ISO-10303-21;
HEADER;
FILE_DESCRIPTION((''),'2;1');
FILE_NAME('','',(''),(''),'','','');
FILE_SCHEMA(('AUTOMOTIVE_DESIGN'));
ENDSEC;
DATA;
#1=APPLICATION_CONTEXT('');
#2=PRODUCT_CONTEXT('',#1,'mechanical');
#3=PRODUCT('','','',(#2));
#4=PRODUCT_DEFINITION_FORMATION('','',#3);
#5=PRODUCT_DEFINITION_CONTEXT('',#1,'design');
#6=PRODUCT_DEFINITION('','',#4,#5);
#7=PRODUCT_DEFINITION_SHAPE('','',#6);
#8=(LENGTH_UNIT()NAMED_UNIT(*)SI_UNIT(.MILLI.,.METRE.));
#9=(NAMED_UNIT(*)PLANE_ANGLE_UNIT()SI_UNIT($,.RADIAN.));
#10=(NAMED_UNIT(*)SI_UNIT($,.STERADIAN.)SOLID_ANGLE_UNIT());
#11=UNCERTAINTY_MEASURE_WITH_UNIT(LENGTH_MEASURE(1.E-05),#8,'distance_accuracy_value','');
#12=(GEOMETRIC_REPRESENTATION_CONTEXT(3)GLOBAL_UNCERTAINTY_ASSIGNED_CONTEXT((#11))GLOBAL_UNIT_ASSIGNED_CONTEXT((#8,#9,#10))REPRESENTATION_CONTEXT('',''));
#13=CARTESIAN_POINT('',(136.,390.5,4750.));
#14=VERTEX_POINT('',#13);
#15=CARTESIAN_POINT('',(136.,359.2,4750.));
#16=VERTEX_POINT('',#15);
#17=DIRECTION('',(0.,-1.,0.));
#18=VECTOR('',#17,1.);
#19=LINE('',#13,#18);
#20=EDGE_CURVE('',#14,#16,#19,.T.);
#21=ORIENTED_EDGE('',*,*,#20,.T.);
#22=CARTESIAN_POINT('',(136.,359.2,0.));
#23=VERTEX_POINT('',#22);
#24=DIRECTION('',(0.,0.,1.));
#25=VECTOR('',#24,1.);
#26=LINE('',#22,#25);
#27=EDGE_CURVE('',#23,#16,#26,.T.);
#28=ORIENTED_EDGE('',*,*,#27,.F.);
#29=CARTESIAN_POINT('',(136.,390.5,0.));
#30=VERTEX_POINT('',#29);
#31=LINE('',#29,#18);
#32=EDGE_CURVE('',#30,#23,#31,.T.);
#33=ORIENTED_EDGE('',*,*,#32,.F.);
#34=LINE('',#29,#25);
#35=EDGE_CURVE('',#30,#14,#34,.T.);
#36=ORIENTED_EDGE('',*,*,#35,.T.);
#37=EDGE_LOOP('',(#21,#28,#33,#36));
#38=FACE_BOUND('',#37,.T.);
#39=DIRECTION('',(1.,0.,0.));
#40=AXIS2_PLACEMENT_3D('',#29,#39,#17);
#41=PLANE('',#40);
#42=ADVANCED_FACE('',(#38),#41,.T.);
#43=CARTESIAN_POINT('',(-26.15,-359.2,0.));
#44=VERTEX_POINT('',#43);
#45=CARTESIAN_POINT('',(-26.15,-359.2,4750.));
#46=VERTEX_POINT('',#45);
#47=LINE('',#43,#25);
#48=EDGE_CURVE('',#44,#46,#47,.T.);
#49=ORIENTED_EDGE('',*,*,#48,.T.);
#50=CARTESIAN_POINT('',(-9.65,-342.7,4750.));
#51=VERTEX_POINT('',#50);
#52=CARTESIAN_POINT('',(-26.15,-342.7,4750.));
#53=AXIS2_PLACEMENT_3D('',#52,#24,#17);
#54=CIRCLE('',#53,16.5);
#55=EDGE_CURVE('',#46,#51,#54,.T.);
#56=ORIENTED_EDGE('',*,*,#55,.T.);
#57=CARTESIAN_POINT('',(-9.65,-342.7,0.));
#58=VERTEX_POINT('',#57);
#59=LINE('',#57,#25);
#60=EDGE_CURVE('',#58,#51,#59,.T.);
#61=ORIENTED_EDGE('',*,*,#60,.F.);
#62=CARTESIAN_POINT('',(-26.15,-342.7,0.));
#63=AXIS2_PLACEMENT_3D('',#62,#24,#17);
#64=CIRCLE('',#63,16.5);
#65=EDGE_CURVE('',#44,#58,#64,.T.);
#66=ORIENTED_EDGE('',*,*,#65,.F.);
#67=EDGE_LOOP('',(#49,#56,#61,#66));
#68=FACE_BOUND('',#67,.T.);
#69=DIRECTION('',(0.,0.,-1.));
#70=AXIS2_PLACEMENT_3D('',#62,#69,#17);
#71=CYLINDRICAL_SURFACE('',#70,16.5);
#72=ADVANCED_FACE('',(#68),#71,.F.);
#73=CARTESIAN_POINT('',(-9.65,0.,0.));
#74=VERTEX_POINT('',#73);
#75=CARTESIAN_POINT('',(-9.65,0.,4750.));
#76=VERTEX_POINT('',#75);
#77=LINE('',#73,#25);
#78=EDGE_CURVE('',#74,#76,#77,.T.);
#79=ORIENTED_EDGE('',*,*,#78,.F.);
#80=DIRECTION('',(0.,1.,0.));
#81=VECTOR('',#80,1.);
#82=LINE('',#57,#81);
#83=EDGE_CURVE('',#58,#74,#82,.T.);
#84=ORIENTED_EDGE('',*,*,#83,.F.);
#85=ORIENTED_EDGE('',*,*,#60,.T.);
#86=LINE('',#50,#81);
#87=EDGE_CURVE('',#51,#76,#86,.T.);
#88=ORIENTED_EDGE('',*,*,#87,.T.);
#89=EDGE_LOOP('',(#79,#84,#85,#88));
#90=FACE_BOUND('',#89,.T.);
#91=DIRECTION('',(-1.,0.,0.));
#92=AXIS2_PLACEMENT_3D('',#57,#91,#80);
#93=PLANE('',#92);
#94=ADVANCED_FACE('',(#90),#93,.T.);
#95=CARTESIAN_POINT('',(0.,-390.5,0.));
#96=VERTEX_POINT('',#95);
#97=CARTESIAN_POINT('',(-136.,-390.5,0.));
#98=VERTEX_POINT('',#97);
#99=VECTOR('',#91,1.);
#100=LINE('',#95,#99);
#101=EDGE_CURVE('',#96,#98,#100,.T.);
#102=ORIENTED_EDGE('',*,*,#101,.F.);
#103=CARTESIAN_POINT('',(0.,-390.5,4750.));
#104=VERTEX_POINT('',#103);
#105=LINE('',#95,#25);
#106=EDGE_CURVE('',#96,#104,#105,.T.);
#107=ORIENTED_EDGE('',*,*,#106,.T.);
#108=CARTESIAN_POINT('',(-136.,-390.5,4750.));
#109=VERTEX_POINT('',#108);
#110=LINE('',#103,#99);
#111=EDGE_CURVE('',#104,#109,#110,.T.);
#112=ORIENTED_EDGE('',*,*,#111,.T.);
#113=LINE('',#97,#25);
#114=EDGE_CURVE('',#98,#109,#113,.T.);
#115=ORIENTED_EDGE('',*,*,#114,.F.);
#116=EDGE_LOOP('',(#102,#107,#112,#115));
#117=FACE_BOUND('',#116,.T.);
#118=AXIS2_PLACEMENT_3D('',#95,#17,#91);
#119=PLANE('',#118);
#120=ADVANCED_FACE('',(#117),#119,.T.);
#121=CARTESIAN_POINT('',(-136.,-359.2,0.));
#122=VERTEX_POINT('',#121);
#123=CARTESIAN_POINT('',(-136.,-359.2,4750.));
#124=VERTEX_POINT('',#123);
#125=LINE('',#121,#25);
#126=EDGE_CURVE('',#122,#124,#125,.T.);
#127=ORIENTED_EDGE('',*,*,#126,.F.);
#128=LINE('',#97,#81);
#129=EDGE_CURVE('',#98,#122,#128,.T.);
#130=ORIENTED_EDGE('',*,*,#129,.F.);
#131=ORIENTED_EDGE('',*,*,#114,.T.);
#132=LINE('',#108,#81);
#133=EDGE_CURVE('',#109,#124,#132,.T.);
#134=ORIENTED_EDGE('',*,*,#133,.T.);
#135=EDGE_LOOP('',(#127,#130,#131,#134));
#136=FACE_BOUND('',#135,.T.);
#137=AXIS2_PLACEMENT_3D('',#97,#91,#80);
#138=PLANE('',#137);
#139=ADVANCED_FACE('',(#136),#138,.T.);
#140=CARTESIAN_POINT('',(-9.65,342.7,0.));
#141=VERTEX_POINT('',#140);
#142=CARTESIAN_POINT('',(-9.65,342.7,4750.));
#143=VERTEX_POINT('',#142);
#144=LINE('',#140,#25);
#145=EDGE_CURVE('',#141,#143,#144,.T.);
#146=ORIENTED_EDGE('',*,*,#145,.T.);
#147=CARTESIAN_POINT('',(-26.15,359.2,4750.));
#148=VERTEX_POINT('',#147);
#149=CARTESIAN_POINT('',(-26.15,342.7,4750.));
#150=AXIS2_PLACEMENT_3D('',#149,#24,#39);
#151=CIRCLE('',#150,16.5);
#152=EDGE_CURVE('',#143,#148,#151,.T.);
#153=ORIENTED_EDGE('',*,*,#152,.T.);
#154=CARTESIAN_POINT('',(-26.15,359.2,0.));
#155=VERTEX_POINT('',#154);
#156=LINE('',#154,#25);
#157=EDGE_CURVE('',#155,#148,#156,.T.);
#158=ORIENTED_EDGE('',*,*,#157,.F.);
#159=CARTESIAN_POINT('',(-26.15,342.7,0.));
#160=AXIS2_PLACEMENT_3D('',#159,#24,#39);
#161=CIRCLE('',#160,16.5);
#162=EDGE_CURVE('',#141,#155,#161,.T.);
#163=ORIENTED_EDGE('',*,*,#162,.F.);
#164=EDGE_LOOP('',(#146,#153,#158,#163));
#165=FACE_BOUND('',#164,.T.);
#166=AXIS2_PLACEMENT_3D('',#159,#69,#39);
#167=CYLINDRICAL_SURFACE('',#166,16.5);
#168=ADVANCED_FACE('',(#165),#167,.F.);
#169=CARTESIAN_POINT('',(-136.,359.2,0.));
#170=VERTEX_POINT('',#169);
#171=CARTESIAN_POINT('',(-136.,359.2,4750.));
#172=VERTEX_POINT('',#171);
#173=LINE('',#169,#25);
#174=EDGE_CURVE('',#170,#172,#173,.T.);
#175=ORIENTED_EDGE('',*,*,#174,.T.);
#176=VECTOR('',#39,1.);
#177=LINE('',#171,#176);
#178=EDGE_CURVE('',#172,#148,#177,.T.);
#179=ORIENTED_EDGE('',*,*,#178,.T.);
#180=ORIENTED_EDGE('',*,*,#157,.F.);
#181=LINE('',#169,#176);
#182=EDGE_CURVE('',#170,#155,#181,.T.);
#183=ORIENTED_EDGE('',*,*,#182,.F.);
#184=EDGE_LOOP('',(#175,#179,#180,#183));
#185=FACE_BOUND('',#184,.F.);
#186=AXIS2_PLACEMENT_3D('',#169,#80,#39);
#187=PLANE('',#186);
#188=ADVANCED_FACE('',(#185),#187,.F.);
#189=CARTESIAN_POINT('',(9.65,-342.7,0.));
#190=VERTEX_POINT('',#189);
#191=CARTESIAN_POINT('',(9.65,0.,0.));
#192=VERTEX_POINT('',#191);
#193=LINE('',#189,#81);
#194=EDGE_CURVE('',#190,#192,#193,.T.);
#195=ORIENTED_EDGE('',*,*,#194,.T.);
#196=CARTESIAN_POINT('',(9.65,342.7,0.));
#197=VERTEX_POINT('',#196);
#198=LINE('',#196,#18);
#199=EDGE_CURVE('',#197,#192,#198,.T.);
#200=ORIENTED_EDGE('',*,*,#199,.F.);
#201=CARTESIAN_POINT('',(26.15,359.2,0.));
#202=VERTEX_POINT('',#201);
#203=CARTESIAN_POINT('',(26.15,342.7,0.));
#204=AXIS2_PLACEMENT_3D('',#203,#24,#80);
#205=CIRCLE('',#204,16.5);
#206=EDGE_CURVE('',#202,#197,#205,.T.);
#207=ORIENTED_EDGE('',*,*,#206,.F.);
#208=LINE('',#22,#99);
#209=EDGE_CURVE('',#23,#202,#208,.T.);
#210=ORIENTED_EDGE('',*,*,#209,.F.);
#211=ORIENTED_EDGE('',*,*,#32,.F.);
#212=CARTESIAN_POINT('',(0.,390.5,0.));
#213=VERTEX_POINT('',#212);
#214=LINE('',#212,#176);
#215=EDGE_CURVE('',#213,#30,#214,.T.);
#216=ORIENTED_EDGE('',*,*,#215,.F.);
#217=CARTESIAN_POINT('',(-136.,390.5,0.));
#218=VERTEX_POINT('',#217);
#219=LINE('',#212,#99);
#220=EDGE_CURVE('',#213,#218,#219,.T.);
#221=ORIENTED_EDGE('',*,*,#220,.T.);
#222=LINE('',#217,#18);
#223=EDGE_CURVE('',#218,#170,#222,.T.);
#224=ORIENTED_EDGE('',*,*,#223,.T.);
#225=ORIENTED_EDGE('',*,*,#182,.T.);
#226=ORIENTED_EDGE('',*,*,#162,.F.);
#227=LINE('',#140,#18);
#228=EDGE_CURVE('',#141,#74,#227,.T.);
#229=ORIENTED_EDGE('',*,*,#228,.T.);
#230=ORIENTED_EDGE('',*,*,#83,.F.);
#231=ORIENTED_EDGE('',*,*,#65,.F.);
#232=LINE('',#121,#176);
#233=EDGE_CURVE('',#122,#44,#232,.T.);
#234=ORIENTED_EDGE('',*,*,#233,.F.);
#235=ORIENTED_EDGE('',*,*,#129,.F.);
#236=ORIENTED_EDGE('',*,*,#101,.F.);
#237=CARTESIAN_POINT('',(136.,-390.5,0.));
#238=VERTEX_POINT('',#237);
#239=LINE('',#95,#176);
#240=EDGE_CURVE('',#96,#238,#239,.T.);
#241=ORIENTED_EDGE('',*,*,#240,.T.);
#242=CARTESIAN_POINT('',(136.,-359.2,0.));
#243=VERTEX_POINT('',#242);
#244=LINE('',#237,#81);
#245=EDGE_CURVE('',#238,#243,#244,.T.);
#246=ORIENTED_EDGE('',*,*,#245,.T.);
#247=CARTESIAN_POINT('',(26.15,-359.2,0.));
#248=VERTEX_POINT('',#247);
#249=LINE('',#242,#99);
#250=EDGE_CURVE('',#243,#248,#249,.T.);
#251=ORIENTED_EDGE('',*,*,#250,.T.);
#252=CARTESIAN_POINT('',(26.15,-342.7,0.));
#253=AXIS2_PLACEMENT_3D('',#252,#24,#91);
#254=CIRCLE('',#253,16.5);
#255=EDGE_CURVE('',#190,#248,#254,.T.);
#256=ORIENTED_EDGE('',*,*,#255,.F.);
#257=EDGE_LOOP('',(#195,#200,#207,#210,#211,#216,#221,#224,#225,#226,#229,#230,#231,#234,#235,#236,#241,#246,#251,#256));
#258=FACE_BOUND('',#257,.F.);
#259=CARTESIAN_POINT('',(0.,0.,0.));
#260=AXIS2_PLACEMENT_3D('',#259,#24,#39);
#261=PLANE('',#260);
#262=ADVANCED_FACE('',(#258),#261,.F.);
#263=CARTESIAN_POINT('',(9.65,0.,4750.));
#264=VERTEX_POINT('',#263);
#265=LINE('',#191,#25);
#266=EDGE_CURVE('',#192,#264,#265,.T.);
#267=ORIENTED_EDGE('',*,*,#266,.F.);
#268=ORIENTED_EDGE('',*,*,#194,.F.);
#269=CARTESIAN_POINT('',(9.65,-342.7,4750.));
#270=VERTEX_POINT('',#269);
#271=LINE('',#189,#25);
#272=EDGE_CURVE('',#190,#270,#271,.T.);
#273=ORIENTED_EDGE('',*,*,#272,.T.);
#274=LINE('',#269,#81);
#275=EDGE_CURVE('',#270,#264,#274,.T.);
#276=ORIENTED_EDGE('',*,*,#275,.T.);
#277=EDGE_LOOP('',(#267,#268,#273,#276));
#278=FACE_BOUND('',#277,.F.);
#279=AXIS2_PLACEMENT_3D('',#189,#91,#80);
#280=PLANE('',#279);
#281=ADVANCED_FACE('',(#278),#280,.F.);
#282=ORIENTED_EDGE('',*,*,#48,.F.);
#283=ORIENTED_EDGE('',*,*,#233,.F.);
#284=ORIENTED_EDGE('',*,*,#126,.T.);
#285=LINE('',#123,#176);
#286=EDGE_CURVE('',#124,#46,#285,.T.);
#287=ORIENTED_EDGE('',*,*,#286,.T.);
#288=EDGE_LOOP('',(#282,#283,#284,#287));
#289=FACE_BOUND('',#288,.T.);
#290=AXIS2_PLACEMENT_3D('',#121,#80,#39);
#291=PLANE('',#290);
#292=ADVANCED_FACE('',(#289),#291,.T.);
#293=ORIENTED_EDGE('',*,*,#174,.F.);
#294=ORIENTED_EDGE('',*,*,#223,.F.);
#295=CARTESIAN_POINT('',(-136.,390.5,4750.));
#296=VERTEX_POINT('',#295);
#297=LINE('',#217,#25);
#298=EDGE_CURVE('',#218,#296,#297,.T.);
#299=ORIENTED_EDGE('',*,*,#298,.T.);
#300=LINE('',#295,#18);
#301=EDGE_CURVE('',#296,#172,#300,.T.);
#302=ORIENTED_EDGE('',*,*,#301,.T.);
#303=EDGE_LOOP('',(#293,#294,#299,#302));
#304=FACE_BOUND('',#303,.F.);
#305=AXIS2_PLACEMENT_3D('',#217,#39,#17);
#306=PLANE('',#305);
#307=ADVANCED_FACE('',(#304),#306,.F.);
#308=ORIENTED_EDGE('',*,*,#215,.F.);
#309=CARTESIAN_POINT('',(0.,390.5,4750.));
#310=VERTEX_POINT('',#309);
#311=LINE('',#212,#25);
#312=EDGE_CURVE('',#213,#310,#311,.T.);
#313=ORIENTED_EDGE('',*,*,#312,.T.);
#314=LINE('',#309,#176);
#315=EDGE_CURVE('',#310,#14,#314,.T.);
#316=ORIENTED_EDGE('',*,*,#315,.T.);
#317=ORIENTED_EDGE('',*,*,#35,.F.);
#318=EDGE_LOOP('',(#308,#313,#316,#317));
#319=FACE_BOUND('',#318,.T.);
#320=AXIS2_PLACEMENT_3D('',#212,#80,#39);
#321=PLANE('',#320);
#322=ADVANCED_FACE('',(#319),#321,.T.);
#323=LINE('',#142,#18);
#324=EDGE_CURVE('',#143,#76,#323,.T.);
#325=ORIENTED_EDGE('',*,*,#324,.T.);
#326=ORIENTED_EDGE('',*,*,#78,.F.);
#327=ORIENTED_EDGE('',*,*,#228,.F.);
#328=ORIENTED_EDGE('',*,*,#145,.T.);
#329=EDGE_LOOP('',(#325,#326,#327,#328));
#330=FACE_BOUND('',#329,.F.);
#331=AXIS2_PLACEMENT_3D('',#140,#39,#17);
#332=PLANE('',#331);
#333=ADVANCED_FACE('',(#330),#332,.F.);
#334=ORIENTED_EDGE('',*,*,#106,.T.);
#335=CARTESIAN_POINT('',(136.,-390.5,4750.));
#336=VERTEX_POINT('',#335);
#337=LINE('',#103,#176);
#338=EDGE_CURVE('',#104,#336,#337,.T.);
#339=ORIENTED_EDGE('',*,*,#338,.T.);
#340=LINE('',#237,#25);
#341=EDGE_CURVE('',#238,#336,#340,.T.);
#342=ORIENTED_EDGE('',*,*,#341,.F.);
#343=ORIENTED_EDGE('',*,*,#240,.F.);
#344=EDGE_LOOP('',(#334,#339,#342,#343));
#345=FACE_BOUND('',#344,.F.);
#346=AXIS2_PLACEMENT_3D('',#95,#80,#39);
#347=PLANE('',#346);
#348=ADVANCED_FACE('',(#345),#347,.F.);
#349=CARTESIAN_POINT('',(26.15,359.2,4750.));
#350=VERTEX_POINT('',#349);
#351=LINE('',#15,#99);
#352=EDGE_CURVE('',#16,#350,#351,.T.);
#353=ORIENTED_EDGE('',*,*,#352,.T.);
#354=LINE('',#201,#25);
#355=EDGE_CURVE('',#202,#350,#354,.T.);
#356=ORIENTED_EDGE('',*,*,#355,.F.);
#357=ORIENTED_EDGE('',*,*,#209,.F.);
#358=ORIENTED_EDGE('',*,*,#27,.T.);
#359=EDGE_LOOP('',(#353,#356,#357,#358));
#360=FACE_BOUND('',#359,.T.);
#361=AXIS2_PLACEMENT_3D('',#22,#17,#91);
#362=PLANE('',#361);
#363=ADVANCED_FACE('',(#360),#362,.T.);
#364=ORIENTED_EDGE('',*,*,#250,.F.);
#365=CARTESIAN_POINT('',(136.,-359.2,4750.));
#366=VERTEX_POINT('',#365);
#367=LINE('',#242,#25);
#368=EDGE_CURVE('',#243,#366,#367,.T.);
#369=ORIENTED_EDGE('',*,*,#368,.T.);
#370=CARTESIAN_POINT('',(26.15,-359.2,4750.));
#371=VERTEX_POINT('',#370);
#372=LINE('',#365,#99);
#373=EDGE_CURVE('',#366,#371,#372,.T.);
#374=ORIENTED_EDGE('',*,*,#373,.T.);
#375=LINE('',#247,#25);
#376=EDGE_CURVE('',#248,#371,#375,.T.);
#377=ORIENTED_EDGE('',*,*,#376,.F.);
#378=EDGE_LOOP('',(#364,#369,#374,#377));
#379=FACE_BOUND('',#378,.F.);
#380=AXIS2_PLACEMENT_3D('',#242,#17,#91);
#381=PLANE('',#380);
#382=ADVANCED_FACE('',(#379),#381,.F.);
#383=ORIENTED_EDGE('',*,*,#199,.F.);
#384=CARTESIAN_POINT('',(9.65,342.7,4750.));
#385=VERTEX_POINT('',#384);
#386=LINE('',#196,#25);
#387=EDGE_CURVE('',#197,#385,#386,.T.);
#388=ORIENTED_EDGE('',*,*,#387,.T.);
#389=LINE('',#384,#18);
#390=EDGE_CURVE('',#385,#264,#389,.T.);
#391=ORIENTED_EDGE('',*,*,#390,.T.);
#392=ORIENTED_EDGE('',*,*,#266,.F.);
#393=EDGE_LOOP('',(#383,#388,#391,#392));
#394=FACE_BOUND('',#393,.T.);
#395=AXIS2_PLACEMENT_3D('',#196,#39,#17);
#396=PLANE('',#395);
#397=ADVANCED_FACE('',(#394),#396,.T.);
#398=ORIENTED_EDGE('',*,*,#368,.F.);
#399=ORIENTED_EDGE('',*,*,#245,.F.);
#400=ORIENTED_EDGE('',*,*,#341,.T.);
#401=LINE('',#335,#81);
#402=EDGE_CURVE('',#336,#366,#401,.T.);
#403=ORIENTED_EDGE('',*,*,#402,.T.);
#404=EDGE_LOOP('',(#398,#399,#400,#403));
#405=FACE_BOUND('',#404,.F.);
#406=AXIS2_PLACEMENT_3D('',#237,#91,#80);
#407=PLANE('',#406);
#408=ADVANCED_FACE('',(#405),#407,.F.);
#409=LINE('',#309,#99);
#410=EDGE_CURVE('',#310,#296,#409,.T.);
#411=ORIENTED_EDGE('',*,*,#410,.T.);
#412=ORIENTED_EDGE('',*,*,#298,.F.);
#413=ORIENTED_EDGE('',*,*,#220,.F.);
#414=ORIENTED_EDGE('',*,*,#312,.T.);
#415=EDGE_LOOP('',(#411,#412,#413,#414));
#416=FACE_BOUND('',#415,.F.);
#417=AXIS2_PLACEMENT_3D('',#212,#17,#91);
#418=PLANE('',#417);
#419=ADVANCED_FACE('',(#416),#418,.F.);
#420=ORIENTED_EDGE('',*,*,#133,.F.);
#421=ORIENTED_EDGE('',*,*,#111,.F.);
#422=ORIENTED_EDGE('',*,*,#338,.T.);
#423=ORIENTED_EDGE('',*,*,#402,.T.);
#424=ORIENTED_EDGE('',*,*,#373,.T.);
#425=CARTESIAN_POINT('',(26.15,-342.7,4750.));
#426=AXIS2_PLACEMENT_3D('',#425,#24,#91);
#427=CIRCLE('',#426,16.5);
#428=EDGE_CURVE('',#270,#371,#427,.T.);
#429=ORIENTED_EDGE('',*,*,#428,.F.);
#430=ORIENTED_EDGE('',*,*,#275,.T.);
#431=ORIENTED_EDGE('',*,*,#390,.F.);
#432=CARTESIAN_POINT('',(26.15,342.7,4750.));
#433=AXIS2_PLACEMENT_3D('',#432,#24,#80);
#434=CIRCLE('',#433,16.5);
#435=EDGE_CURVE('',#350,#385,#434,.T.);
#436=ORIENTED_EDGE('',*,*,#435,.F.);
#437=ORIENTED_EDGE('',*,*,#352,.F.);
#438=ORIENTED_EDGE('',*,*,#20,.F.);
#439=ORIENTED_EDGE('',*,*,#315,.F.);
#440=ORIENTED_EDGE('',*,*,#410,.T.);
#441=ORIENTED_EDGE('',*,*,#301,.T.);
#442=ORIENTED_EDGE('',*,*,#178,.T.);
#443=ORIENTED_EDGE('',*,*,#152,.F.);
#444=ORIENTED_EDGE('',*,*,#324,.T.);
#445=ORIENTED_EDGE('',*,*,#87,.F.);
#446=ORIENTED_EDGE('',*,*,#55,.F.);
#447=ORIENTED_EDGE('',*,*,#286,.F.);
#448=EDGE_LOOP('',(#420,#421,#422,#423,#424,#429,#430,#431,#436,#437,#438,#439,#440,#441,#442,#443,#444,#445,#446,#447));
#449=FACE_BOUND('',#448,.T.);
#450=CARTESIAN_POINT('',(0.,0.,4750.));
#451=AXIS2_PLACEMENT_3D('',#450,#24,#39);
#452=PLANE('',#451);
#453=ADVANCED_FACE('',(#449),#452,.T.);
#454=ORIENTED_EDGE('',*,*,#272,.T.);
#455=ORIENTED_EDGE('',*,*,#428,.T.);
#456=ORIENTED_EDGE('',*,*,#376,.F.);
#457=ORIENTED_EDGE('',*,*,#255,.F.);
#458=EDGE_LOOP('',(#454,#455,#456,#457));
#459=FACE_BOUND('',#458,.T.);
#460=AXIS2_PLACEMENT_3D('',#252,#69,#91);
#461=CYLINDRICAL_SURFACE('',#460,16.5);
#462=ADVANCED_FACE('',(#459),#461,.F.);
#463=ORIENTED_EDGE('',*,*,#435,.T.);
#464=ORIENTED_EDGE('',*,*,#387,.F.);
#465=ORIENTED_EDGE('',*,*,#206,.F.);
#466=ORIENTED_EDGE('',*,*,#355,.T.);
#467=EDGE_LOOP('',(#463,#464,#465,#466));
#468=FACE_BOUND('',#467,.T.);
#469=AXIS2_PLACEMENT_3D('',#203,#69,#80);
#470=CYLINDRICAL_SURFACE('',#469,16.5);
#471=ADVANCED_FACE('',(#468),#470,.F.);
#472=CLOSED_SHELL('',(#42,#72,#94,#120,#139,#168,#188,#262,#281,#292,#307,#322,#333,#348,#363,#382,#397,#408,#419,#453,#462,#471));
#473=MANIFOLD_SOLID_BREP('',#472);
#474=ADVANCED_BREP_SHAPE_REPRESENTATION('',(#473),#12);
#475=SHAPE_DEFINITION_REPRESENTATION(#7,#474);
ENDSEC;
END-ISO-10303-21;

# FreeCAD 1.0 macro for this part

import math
import FreeCAD as App
import Part
import Sketcher

doc = App.newDocument("Part")
body = doc.addObject("PartDesign::Body", "Body")

# Sketch on XY plane
sketch1 = doc.addObject("Sketcher::SketchObject", "Sketch")
body.addObject(sketch1)
sketch1.AttachmentSupport = (doc.XY_Plane, [""])
sketch1.MapMode = "FlatFace"
sketch1.addGeometry(Part.LineSegment(App.Vector(-136, -359, 0), App.Vector(-136, -390, 0)), False)
sketch1.addGeometry(Part.LineSegment(App.Vector(-136, -390, 0), App.Vector(136, -390, 0)), False)
sketch1.addGeometry(Part.LineSegment(App.Vector(136, -390, 0), App.Vector(136, -359, 0)), False)
sketch1.addGeometry(Part.LineSegment(App.Vector(136, -359, 0), App.Vector(26, -359, 0)), False)
sketch1.addGeometry(Part.ArcOfCircle(Part.Circle(App.Vector(26, -343, 0), App.Vector(0, 0, 1), 16), math.radians(180), math.radians(270)), False)
sketch1.addGeometry(Part.LineSegment(App.Vector(10, -343, 0), App.Vector(10, 343, 0)), False)
sketch1.addGeometry(Part.ArcOfCircle(Part.Circle(App.Vector(26, 343, 0), App.Vector(0, 0, 1), 16), math.radians(90), math.radians(180)), False)
sketch1.addGeometry(Part.LineSegment(App.Vector(26, 359, 0), App.Vector(136, 359, 0)), False)
sketch1.addGeometry(Part.LineSegment(App.Vector(136, 359, 0), App.Vector(136, 390, 0)), False)
sketch1.addGeometry(Part.LineSegment(App.Vector(136, 390, 0), App.Vector(-136, 390, 0)), False)
sketch1.addGeometry(Part.LineSegment(App.Vector(-136, 390, 0), App.Vector(-136, 359, 0)), False)
sketch1.addGeometry(Part.LineSegment(App.Vector(-136, 359, 0), App.Vector(-26, 359, 0)), False)
sketch1.addGeometry(Part.ArcOfCircle(Part.Circle(App.Vector(-26, 343, 0), App.Vector(0, 0, 1), 16), math.radians(0), math.radians(90)), False)
sketch1.addGeometry(Part.LineSegment(App.Vector(-10, 343, 0), App.Vector(-10, -343, 0)), False)
sketch1.addGeometry(Part.ArcOfCircle(Part.Circle(App.Vector(-26, -343, 0), App.Vector(0, 0, 1), 16), math.radians(-90), math.radians(0)), False)
sketch1.addGeometry(Part.LineSegment(App.Vector(-26, -359, 0), App.Vector(-136, -359, 0)), False)
sketch1.addConstraint(Sketcher.Constraint("Coincident", 0, 2, 1, 1))
sketch1.addConstraint(Sketcher.Constraint("Coincident", 1, 2, 2, 1))
sketch1.addConstraint(Sketcher.Constraint("Coincident", 2, 2, 3, 1))
sketch1.addConstraint(Sketcher.Constraint("Tangent", 3, 2, 4, 2))
sketch1.addConstraint(Sketcher.Constraint("Tangent", 4, 1, 5, 1))
sketch1.addConstraint(Sketcher.Constraint("Tangent", 5, 2, 6, 2))
sketch1.addConstraint(Sketcher.Constraint("Tangent", 6, 1, 7, 1))
sketch1.addConstraint(Sketcher.Constraint("Coincident", 7, 2, 8, 1))
sketch1.addConstraint(Sketcher.Constraint("Coincident", 8, 2, 9, 1))
sketch1.addConstraint(Sketcher.Constraint("Coincident", 9, 2, 10, 1))
sketch1.addConstraint(Sketcher.Constraint("Coincident", 10, 2, 11, 1))
sketch1.addConstraint(Sketcher.Constraint("Tangent", 11, 2, 12, 2))
sketch1.addConstraint(Sketcher.Constraint("Tangent", 12, 1, 13, 1))
sketch1.addConstraint(Sketcher.Constraint("Tangent", 13, 2, 14, 2))
sketch1.addConstraint(Sketcher.Constraint("Tangent", 14, 1, 15, 1))
sketch1.addConstraint(Sketcher.Constraint("Coincident", 15, 2, 0, 1))
sketch1.addConstraint(Sketcher.Constraint("Vertical", 0))
sketch1.addConstraint(Sketcher.Constraint("Horizontal", 1))
sketch1.addConstraint(Sketcher.Constraint("Vertical", 2))
sketch1.addConstraint(Sketcher.Constraint("Horizontal", 3))
sketch1.addConstraint(Sketcher.Constraint("Vertical", 5))
sketch1.addConstraint(Sketcher.Constraint("Horizontal", 7))
sketch1.addConstraint(Sketcher.Constraint("Vertical", 8))
sketch1.addConstraint(Sketcher.Constraint("Horizontal", 9))
sketch1.addConstraint(Sketcher.Constraint("Vertical", 10))
sketch1.addConstraint(Sketcher.Constraint("Horizontal", 11))
sketch1.addConstraint(Sketcher.Constraint("Vertical", 13))
sketch1.addConstraint(Sketcher.Constraint("Horizontal", 15))
sketch1.addConstraint(Sketcher.Constraint("Equal", 4, 6))
sketch1.addConstraint(Sketcher.Constraint("Equal", 6, 12))
sketch1.addConstraint(Sketcher.Constraint("Equal", 12, 14))
sketch1.addConstraint(Sketcher.Constraint("Symmetric", 4, 3, 12, 3, -1, 1))
sketch1.addConstraint(Sketcher.Constraint("Symmetric", 0, 2, 8, 2, -1, 1))
sketch1.addConstraint(Sketcher.Constraint("Symmetric", 7, 2, 10, 2, -2))
sketch1.addConstraint(Sketcher.Constraint("Symmetric", 2, 2, 15, 2, -2))
sketch1.addConstraint(Sketcher.Constraint("Radius", 4, 16.5))
sketch1.addConstraint(Sketcher.Constraint("DistanceY", 0, 2, 0, 1, 31.3))
sketch1.addConstraint(Sketcher.Constraint("DistanceX", 0, 2, -1, 1, 136.0))
sketch1.addConstraint(Sketcher.Constraint("DistanceY", 0, 2, -1, 1, 390.5))
sketch1.addConstraint(Sketcher.Constraint("DistanceX", -1, 1, 4, 1, 9.65))
pad1 = doc.addObject("PartDesign::Pad", "Pad")
body.addObject(pad1)
pad1.Profile = sketch1
pad1.Length = 4750

doc.recompute()
